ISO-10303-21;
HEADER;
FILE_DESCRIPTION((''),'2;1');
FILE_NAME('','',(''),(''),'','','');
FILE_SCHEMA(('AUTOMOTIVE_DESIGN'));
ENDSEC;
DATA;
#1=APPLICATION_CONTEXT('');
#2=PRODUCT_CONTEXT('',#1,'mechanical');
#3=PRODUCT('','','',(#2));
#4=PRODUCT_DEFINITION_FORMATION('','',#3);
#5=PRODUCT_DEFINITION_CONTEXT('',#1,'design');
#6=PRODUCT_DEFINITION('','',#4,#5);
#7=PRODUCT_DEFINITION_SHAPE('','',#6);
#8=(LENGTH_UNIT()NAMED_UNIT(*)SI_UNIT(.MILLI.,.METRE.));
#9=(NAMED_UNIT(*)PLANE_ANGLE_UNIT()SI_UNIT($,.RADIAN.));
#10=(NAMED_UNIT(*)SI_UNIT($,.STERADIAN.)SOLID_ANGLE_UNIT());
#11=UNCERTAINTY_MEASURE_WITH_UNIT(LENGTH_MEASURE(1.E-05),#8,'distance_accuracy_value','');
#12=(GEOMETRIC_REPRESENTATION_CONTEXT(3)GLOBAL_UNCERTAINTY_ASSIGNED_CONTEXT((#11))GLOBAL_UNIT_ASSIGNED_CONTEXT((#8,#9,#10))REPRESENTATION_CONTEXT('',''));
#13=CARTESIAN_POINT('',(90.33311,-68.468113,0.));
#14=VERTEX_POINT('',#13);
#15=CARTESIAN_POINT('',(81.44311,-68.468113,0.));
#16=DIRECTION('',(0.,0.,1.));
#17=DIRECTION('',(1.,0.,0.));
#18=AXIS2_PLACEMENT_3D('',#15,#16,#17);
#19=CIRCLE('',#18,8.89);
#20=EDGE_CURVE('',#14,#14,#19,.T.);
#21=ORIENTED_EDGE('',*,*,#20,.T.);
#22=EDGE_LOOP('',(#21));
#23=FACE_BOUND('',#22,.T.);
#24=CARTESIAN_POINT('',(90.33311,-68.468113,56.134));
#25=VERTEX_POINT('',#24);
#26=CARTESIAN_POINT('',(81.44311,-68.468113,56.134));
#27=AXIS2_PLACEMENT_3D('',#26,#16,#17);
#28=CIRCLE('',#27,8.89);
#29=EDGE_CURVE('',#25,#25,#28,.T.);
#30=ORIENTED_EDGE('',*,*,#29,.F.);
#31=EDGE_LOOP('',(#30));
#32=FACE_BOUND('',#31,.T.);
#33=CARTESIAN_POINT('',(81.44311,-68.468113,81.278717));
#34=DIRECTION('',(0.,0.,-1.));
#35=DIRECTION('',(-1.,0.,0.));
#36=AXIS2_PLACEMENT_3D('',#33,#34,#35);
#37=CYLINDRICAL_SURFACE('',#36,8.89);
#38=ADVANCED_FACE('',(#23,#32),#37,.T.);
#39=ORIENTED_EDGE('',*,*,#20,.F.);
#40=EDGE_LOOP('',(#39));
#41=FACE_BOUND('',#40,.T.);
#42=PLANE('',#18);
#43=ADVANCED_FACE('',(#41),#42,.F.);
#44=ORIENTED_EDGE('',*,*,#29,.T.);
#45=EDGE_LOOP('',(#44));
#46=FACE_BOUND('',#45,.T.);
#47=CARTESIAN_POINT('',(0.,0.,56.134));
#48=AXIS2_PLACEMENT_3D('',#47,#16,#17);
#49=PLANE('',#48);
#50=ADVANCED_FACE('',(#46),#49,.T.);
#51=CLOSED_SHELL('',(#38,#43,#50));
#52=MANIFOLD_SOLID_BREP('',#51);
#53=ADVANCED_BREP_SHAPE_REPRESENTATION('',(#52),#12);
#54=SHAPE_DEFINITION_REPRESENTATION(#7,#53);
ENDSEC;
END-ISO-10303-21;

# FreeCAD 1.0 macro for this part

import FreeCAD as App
import Part
import Sketcher

V = App.Vector
Q = App.Units.Quantity

doc = App.newDocument("Part")
params = doc.addObject("Spreadsheet::Sheet", "Params")
for row, (alias, value) in enumerate([
    ("sketch1_diameter", "0.7 in"),
    ("pad1_length", "2.21 in"),
], start=1):
    params.set(f"A{row}", alias)
    params.set(f"B{row}", "=" + value)
    params.setAlias(f"B{row}", alias)

body = doc.addObject("PartDesign::Body", "Body")

# Sketch on XY plane
sketch1 = doc.addObject("Sketcher::SketchObject", "Sketch")
body.addObject(sketch1)
sketch1.AttachmentSupport = (doc.XY_Plane, [""])
sketch1.MapMode = "FlatFace"
sketch1.addGeometry(Part.Circle(V(81, -68, 0), V(0, 0, 1), 9), False)
sketch1.addConstraint(Sketcher.Constraint("Diameter", 0, Q("0.7 in")))
sketch1.addConstraint(Sketcher.Constraint("DistanceX", -1, 1, 0, 3, Q("81.44311 mm")))
sketch1.addConstraint(Sketcher.Constraint("DistanceY", 0, 3, -1, 1, Q("68.468113 mm")))
sketch1.setExpression("Constraints[0]", "Params.sketch1_diameter")
pad1 = doc.addObject("PartDesign::Pad", "Pad")
body.addObject(pad1)
pad1.Profile = sketch1
pad1.setExpression("Length", "Params.pad1_length")

doc.recompute()
